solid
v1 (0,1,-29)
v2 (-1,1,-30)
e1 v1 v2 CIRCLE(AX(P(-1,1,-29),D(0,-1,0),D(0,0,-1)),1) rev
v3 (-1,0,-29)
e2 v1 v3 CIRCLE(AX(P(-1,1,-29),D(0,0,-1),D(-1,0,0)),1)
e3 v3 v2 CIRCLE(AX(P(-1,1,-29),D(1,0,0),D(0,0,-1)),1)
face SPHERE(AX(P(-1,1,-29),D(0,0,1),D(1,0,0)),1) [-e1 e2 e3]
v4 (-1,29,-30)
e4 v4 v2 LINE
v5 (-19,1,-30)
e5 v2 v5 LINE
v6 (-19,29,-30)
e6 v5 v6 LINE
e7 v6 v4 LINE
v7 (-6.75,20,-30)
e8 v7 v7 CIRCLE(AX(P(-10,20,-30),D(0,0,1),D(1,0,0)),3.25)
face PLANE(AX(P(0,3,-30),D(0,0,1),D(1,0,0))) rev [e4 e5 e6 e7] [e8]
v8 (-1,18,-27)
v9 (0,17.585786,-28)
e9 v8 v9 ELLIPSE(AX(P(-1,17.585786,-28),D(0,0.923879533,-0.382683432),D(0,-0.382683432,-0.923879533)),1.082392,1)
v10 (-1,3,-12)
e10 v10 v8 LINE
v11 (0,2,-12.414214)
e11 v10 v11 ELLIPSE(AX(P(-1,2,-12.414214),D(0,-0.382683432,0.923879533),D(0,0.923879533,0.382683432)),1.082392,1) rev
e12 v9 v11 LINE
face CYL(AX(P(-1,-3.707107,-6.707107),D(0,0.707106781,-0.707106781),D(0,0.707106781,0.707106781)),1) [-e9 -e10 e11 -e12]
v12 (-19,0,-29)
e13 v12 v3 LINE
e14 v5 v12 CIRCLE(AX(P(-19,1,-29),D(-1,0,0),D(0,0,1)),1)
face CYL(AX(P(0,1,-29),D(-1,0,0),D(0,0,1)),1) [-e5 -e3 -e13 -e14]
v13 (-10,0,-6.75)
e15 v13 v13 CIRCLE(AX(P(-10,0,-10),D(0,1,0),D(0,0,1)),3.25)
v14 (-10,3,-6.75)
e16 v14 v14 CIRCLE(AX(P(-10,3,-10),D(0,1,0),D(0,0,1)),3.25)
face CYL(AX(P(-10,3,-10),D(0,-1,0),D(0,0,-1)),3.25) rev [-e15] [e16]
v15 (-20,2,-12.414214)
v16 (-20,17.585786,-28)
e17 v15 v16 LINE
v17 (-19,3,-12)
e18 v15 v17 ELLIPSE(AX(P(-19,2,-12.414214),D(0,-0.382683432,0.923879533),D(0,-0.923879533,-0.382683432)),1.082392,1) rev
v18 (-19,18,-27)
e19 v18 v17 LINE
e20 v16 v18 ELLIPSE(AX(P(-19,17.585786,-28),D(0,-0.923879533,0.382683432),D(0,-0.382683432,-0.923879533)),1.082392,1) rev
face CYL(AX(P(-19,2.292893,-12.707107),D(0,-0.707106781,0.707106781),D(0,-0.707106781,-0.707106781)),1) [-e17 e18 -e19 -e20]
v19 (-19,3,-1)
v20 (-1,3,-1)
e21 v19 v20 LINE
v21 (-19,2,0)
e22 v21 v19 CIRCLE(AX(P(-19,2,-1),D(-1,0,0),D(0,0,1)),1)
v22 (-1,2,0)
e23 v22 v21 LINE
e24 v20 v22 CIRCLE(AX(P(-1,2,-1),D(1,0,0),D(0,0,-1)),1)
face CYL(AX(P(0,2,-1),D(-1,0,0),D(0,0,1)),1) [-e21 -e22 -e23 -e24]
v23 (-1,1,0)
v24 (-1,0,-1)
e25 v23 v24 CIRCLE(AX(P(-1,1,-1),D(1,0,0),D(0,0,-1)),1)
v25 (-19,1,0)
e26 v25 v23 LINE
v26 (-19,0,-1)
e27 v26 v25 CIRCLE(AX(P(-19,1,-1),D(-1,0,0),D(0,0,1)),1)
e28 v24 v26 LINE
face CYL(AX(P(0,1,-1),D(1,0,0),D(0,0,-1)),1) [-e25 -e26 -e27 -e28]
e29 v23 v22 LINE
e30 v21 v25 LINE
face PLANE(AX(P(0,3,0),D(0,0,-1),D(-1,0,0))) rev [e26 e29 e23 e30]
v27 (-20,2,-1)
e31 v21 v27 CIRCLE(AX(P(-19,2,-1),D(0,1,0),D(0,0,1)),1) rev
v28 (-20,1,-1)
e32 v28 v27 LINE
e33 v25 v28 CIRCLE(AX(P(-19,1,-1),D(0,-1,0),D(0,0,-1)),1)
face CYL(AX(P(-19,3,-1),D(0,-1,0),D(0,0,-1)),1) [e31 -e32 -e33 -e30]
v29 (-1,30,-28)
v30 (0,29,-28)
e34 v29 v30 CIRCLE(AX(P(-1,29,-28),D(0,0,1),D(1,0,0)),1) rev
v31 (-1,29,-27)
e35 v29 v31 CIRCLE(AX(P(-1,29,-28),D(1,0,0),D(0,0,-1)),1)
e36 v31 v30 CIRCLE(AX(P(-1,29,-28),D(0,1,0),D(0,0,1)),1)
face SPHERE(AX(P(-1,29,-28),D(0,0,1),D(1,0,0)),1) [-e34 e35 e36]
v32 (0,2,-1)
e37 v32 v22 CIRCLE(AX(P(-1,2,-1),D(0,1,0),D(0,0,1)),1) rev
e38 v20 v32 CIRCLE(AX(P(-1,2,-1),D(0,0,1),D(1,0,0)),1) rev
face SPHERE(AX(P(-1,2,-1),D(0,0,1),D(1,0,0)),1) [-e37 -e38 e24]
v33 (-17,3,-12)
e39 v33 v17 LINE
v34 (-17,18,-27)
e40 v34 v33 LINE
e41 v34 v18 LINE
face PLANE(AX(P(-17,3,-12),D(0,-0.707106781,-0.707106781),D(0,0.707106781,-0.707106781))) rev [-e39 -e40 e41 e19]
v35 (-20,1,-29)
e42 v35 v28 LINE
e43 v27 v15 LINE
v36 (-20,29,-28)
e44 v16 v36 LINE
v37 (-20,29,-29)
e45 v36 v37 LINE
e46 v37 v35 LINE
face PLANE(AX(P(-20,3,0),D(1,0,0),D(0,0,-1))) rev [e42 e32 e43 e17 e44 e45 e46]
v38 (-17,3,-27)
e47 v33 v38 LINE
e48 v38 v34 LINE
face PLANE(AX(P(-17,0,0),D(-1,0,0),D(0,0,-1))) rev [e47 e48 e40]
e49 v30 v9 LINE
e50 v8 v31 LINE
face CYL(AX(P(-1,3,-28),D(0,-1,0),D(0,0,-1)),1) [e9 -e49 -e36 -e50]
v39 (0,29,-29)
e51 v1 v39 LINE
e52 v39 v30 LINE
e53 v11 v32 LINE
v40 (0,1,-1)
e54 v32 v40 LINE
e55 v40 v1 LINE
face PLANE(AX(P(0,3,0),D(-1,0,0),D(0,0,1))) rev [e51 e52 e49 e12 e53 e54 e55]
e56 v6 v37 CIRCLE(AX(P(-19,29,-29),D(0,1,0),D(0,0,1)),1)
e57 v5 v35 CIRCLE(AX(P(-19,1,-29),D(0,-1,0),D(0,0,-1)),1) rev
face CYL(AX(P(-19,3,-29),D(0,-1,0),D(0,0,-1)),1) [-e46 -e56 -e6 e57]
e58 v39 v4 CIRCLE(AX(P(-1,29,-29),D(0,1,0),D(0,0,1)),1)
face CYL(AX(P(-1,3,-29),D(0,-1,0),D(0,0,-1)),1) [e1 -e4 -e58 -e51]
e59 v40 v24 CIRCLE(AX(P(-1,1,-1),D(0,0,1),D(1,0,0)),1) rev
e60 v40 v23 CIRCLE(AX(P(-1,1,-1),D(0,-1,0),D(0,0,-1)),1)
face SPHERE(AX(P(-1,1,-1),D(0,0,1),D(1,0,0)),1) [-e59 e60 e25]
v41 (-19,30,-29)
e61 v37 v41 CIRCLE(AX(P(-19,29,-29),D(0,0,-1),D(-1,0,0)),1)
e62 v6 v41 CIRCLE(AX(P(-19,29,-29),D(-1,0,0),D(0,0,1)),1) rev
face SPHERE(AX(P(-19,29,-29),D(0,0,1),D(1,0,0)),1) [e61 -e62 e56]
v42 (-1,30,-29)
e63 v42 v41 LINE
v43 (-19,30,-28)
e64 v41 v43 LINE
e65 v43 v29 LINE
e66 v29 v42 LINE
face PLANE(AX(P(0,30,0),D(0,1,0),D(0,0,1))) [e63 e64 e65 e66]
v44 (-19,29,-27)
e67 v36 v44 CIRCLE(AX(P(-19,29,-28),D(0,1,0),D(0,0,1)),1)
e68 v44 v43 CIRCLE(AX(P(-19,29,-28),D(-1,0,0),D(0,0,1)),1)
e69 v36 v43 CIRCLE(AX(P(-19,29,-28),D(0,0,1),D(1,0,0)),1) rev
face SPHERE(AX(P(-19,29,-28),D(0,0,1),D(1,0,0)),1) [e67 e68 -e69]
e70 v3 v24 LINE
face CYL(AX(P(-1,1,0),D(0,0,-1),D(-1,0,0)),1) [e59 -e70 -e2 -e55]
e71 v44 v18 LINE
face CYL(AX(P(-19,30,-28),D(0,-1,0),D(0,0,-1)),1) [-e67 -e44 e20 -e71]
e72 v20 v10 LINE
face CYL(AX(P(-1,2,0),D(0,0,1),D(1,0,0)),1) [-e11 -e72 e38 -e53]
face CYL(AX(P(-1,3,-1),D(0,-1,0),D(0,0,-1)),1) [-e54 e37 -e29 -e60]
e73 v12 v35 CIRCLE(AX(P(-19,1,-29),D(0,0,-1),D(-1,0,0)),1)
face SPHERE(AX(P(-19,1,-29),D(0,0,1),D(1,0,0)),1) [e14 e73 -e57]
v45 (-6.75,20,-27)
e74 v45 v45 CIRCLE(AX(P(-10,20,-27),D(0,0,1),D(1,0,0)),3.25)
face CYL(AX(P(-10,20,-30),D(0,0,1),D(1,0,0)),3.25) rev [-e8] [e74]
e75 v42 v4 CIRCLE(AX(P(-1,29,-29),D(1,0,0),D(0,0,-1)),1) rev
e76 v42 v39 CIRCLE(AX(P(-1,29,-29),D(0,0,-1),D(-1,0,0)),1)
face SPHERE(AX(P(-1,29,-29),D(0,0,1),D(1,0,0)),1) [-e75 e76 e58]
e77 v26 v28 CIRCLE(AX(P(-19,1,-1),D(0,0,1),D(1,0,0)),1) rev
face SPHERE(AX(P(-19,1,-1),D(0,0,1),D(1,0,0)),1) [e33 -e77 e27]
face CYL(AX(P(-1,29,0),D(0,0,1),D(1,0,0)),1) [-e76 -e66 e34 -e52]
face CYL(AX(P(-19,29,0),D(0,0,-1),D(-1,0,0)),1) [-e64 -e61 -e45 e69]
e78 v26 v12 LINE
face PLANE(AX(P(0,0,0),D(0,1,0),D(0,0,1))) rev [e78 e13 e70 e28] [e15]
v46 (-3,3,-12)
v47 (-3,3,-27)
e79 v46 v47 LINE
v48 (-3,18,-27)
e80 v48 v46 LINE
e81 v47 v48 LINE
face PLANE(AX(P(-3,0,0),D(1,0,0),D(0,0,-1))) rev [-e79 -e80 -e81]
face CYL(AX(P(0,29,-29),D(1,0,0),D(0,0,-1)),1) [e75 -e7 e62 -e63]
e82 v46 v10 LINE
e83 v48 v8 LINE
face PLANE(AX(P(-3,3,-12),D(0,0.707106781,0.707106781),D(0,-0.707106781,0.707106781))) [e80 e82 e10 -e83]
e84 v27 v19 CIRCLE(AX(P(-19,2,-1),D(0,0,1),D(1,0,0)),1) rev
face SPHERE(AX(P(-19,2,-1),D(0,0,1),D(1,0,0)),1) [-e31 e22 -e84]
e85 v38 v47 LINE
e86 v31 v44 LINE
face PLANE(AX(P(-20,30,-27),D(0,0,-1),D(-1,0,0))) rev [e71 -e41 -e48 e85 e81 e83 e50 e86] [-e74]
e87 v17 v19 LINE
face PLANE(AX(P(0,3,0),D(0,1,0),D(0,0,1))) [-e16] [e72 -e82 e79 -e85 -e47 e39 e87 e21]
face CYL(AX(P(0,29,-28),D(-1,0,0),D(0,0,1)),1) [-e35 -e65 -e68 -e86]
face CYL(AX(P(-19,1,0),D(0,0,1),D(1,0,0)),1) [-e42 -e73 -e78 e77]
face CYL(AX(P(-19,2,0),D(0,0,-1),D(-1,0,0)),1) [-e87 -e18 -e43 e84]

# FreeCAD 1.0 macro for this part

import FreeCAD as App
import Part
import Sketcher
from FreeCAD import Vector
Q = App.Units.Quantity


def edges_at(feature, points):
    """Names of the edges that pass closest to the given points."""
    edges = feature.Shape.Edges
    near = lambda p: min(range(len(edges)), key=lambda i: edges[i].distToShape(Part.Vertex(*p))[0])
    return sorted({f"Edge{near(p) + 1}" for p in points})


def add_polygon(sketch, points):
    """Adds a closed chain of lines whose ends are joined by coincident constraints."""
    first, n = sketch.GeometryCount, len(points)
    for a, b in zip(points, points[1:] + points[:1]):
        sketch.addGeometry(Part.LineSegment(App.Vector(*a, 0), App.Vector(*b, 0)), False)
    for i in range(n):
        sketch.addConstraint(Sketcher.Constraint("Coincident", first + i, 2, first + (i + 1) % n, 1))

doc = App.newDocument("Part")
body = doc.addObject("PartDesign::Body", "Body")

# Sketch on XZ plane
sketch1 = doc.addObject("Sketcher::SketchObject", "Sketch")
body.addObject(sketch1)
sketch1.AttachmentSupport = (doc.XZ_Plane, [""])
sketch1.MapMode = "FlatFace"
add_polygon(sketch1, [(-20, -30), (-20, 0), (0, 0), (0, -30)])  # lines 0-3
sketch1.addGeometry(Part.Circle(Vector(-10, -10, 0), Vector(0, 0, 1), 3.25), False)  # 4
sketch1.addConstraint([
    Sketcher.Constraint("Vertical", 0),
    Sketcher.Constraint("Horizontal", 1),
    Sketcher.Constraint("Vertical", 2),
    Sketcher.Constraint("Horizontal", 3),
    Sketcher.Constraint("Coincident", 1, 2, -1, 1),
    Sketcher.Constraint("Diameter", 4, Q("6.5 mm")),
    Sketcher.Constraint("DistanceX", 1, 1, 1, 2, Q("20 mm")),
    Sketcher.Constraint("DistanceY", 0, 1, 0, 2, Q("30 mm")),
    Sketcher.Constraint("DistanceX", 4, 3, -1, 1, Q("10 mm")),
    Sketcher.Constraint("DistanceY", 4, 3, -1, 1, Q("10 mm")),
])
pad1 = doc.addObject("PartDesign::Pad", "Pad")
body.addObject(pad1)
pad1.Profile = sketch1
pad1.Length = 3
pad1.Reversed = True

# Sketch on XZ plane
sketch2 = doc.addObject("Sketcher::SketchObject", "Sketch001")
body.addObject(sketch2)
sketch2.AttachmentSupport = (doc.XZ_Plane, [""])
sketch2.MapMode = "FlatFace"
sketch2.AttachmentOffset = App.Placement(Vector(0, 0, -3), App.Rotation())
add_polygon(sketch2, [(-20, -30), (-20, -27), (0, -27), (0, -30)])  # lines 0-3
sketch2.addConstraint([
    Sketcher.Constraint("Vertical", 0),
    Sketcher.Constraint("Horizontal", 1),
    Sketcher.Constraint("Vertical", 2),
    Sketcher.Constraint("Horizontal", 3),
    Sketcher.Constraint("PointOnObject", 1, 2, -2),
    Sketcher.Constraint("DistanceX", 1, 1, 1, 2, Q("20 mm")),
    Sketcher.Constraint("DistanceY", 0, 1, 0, 2, Q("3 mm")),
    Sketcher.Constraint("DistanceY", 0, 2, -1, 1, Q("27 mm")),
])
pad2 = doc.addObject("PartDesign::Pad", "Pad001")
body.addObject(pad2)
pad2.Profile = sketch2
pad2.Length = 27
pad2.Reversed = True

# Sketch on XY plane
sketch3 = doc.addObject("Sketcher::SketchObject", "Sketch002")
body.addObject(sketch3)
sketch3.AttachmentSupport = (doc.XY_Plane, [""])
sketch3.MapMode = "FlatFace"
sketch3.AttachmentOffset = App.Placement(Vector(0, 0, -27), App.Rotation())
sketch3.addGeometry(Part.Circle(Vector(-10, 20, 0), Vector(0, 0, 1), 3.25), False)
sketch3.addConstraint([
    Sketcher.Constraint("Diameter", 0, Q("6.5 mm")),
    Sketcher.Constraint("DistanceX", 0, 3, -1, 1, Q("10 mm")),
    Sketcher.Constraint("DistanceY", -1, 1, 0, 3, Q("20 mm")),
])
pocket1 = doc.addObject("PartDesign::Pocket", "Pocket")
body.addObject(pocket1)
pocket1.Profile = sketch3
pocket1.Type = "ThroughAll"

# Sketch on YZ plane
sketch4 = doc.addObject("Sketcher::SketchObject", "Sketch003")
body.addObject(sketch4)
sketch4.AttachmentSupport = (doc.YZ_Plane, [""])
sketch4.MapMode = "FlatFace"
add_polygon(sketch4, [(18, -27), (3, -12), (3, -27)])  # lines 0-2
sketch4.addConstraint([
    Sketcher.Constraint("Vertical", 1),
    Sketcher.Constraint("Horizontal", 2),
    Sketcher.Constraint("Equal", 2, 1),
    Sketcher.Constraint("DistanceX", 2, 1, 2, 2, Q("15 mm")),
    Sketcher.Constraint("DistanceX", -1, 1, 0, 2, Q("3 mm")),
    Sketcher.Constraint("DistanceY", 0, 2, -1, 1, Q("12 mm")),
])
pad3 = doc.addObject("PartDesign::Pad", "Pad002")
body.addObject(pad3)
pad3.Profile = sketch4
pad3.Length = 3
pad3.Reversed = True
doc.recompute()

datumplane = doc.addObject("PartDesign::Plane", "DatumPlane")
body.addObject(datumplane)
datumplane.AttachmentSupport = (doc.YZ_Plane, [""])
datumplane.MapMode = "FlatFace"
datumplane.AttachmentOffset = App.Placement(Vector(0, 0, -10), App.Rotation())
mirrored = doc.addObject("PartDesign::Mirrored", "Mirrored")
body.addObject(mirrored)
mirrored.Originals = [pad3]
mirrored.MirrorPlane = (datumplane, [""])
body.Tip = mirrored
doc.recompute()

fillet = doc.addObject("PartDesign::Fillet", "Fillet")
body.addObject(fillet)
fillet.Base = (mirrored, edges_at(mirrored, [
    (-10, 3, 0),
    (-20, 24, -27),
    (0, 24, -27),
    (-20, 30, -28.5),
    (-10, 30, -27),
    (0, 30, -28.5),
    (-10, 30, -30),
    (0, 10.5, -19.5),
    (-20, 3, -6),
    (-20, 10.5, -19.5),
    (0, 3, -6),
    (-10, 0, 0),
    (-20, 0, -15),
    (-10, 0, -30),
    (0, 0, -15),
    (0, 1.5, 0),
    (-20, 1.5, 0),
    (-20, 15, -30),
    (0, 15, -30),
]))
fillet.Radius = 1

doc.recompute()
